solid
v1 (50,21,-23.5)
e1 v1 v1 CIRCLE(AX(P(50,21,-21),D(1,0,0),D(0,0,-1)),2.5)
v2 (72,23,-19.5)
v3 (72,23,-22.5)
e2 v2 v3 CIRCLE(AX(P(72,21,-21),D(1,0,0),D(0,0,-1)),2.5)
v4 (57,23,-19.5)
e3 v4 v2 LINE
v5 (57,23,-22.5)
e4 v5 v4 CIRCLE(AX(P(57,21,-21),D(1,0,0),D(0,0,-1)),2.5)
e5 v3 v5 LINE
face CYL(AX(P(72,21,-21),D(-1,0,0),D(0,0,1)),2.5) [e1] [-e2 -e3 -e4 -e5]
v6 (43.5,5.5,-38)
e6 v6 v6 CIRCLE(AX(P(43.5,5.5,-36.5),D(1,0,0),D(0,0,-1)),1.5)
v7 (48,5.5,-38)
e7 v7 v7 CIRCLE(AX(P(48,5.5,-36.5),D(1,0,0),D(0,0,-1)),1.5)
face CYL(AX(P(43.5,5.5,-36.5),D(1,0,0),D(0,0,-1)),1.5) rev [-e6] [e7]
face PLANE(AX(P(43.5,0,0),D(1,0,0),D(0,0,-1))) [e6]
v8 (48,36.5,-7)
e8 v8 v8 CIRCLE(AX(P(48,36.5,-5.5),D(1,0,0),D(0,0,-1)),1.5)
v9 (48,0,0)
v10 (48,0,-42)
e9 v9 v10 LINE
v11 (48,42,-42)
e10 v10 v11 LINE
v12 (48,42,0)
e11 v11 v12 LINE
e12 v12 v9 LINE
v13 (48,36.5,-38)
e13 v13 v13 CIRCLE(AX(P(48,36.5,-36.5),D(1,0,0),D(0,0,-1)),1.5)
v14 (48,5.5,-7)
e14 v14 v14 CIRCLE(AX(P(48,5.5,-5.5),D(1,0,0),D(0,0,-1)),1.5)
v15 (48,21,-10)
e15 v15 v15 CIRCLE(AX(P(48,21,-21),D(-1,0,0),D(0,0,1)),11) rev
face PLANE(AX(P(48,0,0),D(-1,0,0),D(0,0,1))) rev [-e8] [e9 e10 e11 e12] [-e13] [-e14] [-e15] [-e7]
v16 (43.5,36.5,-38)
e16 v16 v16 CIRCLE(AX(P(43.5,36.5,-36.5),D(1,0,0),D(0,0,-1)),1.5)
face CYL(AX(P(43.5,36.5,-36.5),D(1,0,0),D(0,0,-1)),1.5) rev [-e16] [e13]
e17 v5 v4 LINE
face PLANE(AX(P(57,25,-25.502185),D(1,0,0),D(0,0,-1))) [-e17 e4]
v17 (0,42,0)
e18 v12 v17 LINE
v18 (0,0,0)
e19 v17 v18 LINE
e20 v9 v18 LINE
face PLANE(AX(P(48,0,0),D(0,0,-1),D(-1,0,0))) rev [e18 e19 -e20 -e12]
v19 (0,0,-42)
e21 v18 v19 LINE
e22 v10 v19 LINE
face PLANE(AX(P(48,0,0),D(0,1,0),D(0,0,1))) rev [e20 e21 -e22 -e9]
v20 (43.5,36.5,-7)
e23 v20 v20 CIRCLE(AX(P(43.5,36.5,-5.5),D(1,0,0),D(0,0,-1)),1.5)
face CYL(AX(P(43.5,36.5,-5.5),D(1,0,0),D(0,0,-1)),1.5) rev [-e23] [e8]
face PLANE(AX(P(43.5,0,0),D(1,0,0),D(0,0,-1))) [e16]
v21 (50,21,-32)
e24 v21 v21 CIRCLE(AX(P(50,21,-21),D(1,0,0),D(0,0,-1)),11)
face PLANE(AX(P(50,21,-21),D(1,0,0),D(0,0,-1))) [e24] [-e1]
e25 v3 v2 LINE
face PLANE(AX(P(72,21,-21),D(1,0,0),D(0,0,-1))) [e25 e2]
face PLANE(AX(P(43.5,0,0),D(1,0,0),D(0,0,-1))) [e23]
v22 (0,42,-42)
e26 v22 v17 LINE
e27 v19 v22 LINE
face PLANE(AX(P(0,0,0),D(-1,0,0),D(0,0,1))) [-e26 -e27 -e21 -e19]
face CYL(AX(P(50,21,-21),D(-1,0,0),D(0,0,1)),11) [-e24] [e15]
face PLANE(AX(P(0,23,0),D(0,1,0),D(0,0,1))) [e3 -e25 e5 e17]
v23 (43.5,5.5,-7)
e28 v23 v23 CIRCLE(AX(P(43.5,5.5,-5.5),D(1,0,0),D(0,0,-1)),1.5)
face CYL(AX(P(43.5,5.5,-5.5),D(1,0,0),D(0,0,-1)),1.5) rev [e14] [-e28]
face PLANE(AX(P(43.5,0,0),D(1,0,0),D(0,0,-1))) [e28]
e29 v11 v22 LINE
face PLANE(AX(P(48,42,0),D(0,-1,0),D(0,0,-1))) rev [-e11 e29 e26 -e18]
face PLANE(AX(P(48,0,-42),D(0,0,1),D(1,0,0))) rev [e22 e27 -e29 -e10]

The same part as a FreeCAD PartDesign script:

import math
import FreeCAD as App
import Part
import Sketcher

V = App.Vector


def add_polygon(sketch, points):
    """Adds a closed chain of lines whose ends are joined by coincident constraints."""
    first, n = sketch.GeometryCount, len(points)
    for a, b in zip(points, points[1:] + points[:1]):
        sketch.addGeometry(Part.LineSegment(App.Vector(*a, 0), App.Vector(*b, 0)), False)
    for i in range(n):
        sketch.addConstraint(Sketcher.Constraint("Coincident", first + i, 2, first + (i + 1) % n, 1))

doc = App.newDocument("Part")
body = doc.addObject("PartDesign::Body", "Body")

sketch1 = body.newObject("Sketcher::SketchObject", "Sketch")
sketch1.AttachmentSupport = (doc.getObject("YZ_Plane"), [""])
sketch1.MapMode = "FlatFace"
add_polygon(sketch1, [(42, 0), (0, 0), (0, -42), (42, -42)])
sketch1.addConstraint([
    Sketcher.Constraint("Horizontal", 0),
    Sketcher.Constraint("Vertical", 1),
    Sketcher.Constraint("Horizontal", 2),
    Sketcher.Constraint("Vertical", 3),
    Sketcher.Constraint("Coincident", 0, 2, -1, 1),
    Sketcher.Constraint("Equal", 2, 1),
    Sketcher.Constraint("DistanceX", 0, 2, 0, 1, 42.0),
])
pad1 = body.newObject("PartDesign::Pad", "Pad")
pad1.Profile = sketch1
pad1.Length = 48

sketch2 = body.newObject("Sketcher::SketchObject", "Sketch001")
sketch2.AttachmentSupport = (doc.getObject("YZ_Plane"), [""])
sketch2.MapMode = "FlatFace"
sketch2.AttachmentOffset = App.Placement(V(0, 0, 48), App.Rotation())
sketch2.addGeometry(Part.Circle(V(21, -21, 0), V(0, 0, 1), 11), False)
sketch2.addConstraint([
    Sketcher.Constraint("Diameter", 0, 22.0),
    Sketcher.Constraint("DistanceX", -1, 1, 0, 3, 21.0),
    Sketcher.Constraint("DistanceY", 0, 3, -1, 1, 21.0),
])
pad2 = body.newObject("PartDesign::Pad", "Pad001")
pad2.Profile = sketch2
pad2.Length = 2

sketch3 = body.newObject("Sketcher::SketchObject", "Sketch002")
sketch3.AttachmentSupport = (doc.getObject("YZ_Plane"), [""])
sketch3.MapMode = "FlatFace"
sketch3.AttachmentOffset = App.Placement(V(0, 0, 50), App.Rotation())
sketch3.addGeometry(Part.Circle(V(21, -21, 0), V(0, 0, 1), 2.5), False)
sketch3.addConstraint([
    Sketcher.Constraint("Diameter", 0, 5.0),
    Sketcher.Constraint("DistanceX", -1, 1, 0, 3, 21.0),
    Sketcher.Constraint("DistanceY", 0, 3, -1, 1, 21.0),
])
pad3 = body.newObject("PartDesign::Pad", "Pad002")
pad3.Profile = sketch3
pad3.Length = 22

sketch4 = body.newObject("Sketcher::SketchObject", "Sketch003")
sketch4.AttachmentSupport = (doc.getObject("XZ_Plane"), [""])
sketch4.MapMode = "FlatFace"
sketch4.AttachmentOffset = App.Placement(V(0, 0, -23), App.Rotation())
add_polygon(sketch4, [(57, -26), (57, -16), (72, -16), (72, -26)])
sketch4.addConstraint([
    Sketcher.Constraint("Vertical", 0),
    Sketcher.Constraint("Horizontal", 1),
    Sketcher.Constraint("Vertical", 2),
    Sketcher.Constraint("Horizontal", 3),
    Sketcher.Constraint("DistanceX", 1, 1, 1, 2, 15.0),
    Sketcher.Constraint("DistanceX", -1, 1, 0, 2, 57.0),
    Sketcher.Constraint("DistanceY", 0, 1, 0, 2, 9.626973),
    Sketcher.Constraint("DistanceY", 0, 2, -1, 1, 15.875212),
])
pocket1 = body.newObject("PartDesign::Pocket", "Pocket")
pocket1.Profile = sketch4
pocket1.Length = 2

sketch5 = body.newObject("Sketcher::SketchObject", "Sketch004")
sketch5.AttachmentSupport = (doc.getObject("YZ_Plane"), [""])
sketch5.MapMode = "FlatFace"
sketch5.AttachmentOffset = App.Placement(V(0, 0, 48), App.Rotation())
sketch5.addGeometry([
    Part.ArcOfCircle(Part.Circle(V(36.5, -5.5, 0), V(0, 0, 1), 1.5), math.radians(-90), math.radians(180)),
    Part.ArcOfCircle(Part.Circle(V(36.5, -5.5, 0), V(0, 0, 1), 1.5), math.radians(180), math.radians(270)),
    Part.ArcOfCircle(Part.Circle(V(36.5, -36.5, 0), V(0, 0, 1), 1.5), math.radians(-90), math.radians(90)),
    Part.ArcOfCircle(Part.Circle(V(36.5, -36.5, 0), V(0, 0, 1), 1.5), math.radians(90), math.radians(180)),
    Part.ArcOfCircle(Part.Circle(V(36.5, -36.5, 0), V(0, 0, 1), 1.5), math.radians(180), math.radians(270)),
    Part.ArcOfCircle(Part.Circle(V(5.5, -36.5, 0), V(0, 0, 1), 1.5), math.radians(-90), math.radians(0)),
    Part.ArcOfCircle(Part.Circle(V(5.5, -36.5, 0), V(0, 0, 1), 1.5), math.radians(0), math.radians(90)),
    Part.ArcOfCircle(Part.Circle(V(5.5, -36.5, 0), V(0, 0, 1), 1.5), math.radians(90), math.radians(270)),
    Part.ArcOfCircle(Part.Circle(V(5.5, -5.5, 0), V(0, 0, 1), 1.5), math.radians(-90), math.radians(0)),
    Part.ArcOfCircle(Part.Circle(V(5.5, -5.5, 0), V(0, 0, 1), 1.5), math.radians(0), math.radians(270)),
], False)
sketch5.addConstraint([
    Sketcher.Constraint("Tangent", 0, 1, 1, 2),
    Sketcher.Constraint("Coincident", 1, 1, 0, 2),
    Sketcher.Constraint("Tangent", 2, 2, 3, 1),
    Sketcher.Constraint("Tangent", 3, 2, 4, 1),
    Sketcher.Constraint("Tangent", 4, 2, 2, 1),
    Sketcher.Constraint("Tangent", 5, 2, 6, 1),
    Sketcher.Constraint("Tangent", 6, 2, 7, 1),
    Sketcher.Constraint("Tangent", 7, 2, 5, 1),
    Sketcher.Constraint("Tangent", 8, 1, 9, 2),
    Sketcher.Constraint("Coincident", 9, 1, 8, 2),
    Sketcher.Constraint("Equal", 1, 2),
    Sketcher.Constraint("Equal", 4, 5),
    Sketcher.Constraint("Equal", 7, 8),
    Sketcher.Constraint("Horizontal", 4, 3, 5, 3),
    Sketcher.Constraint("Horizontal", 1, 3, 8, 3),
    Sketcher.Constraint("Horizontal", 9, 3, 1, 1),
    Sketcher.Constraint("Horizontal", 7, 3, 3, 2),
    Sketcher.Constraint("Horizontal", 3, 2, 5, 2),
    Sketcher.Constraint("Horizontal", 1, 1, 9, 1),
    Sketcher.Constraint("Vertical", 1, 3, 2, 3),
    Sketcher.Constraint("Vertical", 7, 3, 8, 3),
    Sketcher.Constraint("Vertical", 4, 3, 0, 1),
    Sketcher.Constraint("Vertical", 0, 1, 2, 2),
    Sketcher.Constraint("Vertical", 2, 2, 4, 2),
    Sketcher.Constraint("Vertical", 9, 3, 6, 2),
    Sketcher.Constraint("Vertical", 6, 2, 7, 2),
    Sketcher.Constraint("Vertical", 7, 2, 8, 1),
    Sketcher.Constraint("Radius", 0, 1.5),
    Sketcher.Constraint("DistanceY", 0, 1, -1, 1, 7.0),
    Sketcher.Constraint("DistanceX", -1, 1, 1, 1, 35.0),
    Sketcher.Constraint("DistanceY", 2, 2, -1, 1, 35.0),
    Sketcher.Constraint("DistanceX", -1, 1, 5, 2, 7.0),
])
pocket2 = body.newObject("PartDesign::Pocket", "Pocket001")
pocket2.Profile = sketch5
pocket2.Length = 4.5

doc.recompute()
